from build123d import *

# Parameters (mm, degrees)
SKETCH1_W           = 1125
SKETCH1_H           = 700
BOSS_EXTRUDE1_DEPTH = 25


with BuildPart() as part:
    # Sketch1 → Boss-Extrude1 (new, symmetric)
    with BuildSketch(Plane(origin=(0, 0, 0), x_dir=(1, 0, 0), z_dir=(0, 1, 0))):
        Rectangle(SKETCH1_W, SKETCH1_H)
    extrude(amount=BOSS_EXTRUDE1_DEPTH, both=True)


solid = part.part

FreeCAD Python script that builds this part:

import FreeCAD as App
import Part
import Sketcher


def add_polygon(sketch, points):
    """Adds a closed chain of lines whose ends are joined by coincident constraints."""
    first, n = sketch.GeometryCount, len(points)
    for a, b in zip(points, points[1:] + points[:1]):
        sketch.addGeometry(Part.LineSegment(App.Vector(*a, 0), App.Vector(*b, 0)), False)
    for i in range(n):
        sketch.addConstraint(Sketcher.Constraint("Coincident", first + i, 2, first + (i + 1) % n, 1))

doc = App.newDocument("Part")
body = doc.addObject("PartDesign::Body", "Body")

sketch1 = body.newObject("Sketcher::SketchObject", "Sketch")
sketch1.AttachmentSupport = (doc.getObject("XZ_Plane"), [""])
sketch1.MapMode = "FlatFace"
add_polygon(sketch1, [(-562, -350), (-562, 350), (562, 350), (562, -350)])
sketch1.addConstraint([
    Sketcher.Constraint("Vertical", 0),
    Sketcher.Constraint("Horizontal", 1),
    Sketcher.Constraint("Vertical", 2),
    Sketcher.Constraint("Horizontal", 3),
    Sketcher.Constraint("Symmetric", 0, 2, 2, 2, -1, 1),
    Sketcher.Constraint("DistanceX", 1, 1, 1, 2, 1125.0),
    Sketcher.Constraint("DistanceY", 0, 1, 0, 2, 700.0),
])
pad1 = body.newObject("PartDesign::Pad", "Pad")
pad1.Profile = sketch1
pad1.Length = 50
pad1.Midplane = True

doc.recompute()
